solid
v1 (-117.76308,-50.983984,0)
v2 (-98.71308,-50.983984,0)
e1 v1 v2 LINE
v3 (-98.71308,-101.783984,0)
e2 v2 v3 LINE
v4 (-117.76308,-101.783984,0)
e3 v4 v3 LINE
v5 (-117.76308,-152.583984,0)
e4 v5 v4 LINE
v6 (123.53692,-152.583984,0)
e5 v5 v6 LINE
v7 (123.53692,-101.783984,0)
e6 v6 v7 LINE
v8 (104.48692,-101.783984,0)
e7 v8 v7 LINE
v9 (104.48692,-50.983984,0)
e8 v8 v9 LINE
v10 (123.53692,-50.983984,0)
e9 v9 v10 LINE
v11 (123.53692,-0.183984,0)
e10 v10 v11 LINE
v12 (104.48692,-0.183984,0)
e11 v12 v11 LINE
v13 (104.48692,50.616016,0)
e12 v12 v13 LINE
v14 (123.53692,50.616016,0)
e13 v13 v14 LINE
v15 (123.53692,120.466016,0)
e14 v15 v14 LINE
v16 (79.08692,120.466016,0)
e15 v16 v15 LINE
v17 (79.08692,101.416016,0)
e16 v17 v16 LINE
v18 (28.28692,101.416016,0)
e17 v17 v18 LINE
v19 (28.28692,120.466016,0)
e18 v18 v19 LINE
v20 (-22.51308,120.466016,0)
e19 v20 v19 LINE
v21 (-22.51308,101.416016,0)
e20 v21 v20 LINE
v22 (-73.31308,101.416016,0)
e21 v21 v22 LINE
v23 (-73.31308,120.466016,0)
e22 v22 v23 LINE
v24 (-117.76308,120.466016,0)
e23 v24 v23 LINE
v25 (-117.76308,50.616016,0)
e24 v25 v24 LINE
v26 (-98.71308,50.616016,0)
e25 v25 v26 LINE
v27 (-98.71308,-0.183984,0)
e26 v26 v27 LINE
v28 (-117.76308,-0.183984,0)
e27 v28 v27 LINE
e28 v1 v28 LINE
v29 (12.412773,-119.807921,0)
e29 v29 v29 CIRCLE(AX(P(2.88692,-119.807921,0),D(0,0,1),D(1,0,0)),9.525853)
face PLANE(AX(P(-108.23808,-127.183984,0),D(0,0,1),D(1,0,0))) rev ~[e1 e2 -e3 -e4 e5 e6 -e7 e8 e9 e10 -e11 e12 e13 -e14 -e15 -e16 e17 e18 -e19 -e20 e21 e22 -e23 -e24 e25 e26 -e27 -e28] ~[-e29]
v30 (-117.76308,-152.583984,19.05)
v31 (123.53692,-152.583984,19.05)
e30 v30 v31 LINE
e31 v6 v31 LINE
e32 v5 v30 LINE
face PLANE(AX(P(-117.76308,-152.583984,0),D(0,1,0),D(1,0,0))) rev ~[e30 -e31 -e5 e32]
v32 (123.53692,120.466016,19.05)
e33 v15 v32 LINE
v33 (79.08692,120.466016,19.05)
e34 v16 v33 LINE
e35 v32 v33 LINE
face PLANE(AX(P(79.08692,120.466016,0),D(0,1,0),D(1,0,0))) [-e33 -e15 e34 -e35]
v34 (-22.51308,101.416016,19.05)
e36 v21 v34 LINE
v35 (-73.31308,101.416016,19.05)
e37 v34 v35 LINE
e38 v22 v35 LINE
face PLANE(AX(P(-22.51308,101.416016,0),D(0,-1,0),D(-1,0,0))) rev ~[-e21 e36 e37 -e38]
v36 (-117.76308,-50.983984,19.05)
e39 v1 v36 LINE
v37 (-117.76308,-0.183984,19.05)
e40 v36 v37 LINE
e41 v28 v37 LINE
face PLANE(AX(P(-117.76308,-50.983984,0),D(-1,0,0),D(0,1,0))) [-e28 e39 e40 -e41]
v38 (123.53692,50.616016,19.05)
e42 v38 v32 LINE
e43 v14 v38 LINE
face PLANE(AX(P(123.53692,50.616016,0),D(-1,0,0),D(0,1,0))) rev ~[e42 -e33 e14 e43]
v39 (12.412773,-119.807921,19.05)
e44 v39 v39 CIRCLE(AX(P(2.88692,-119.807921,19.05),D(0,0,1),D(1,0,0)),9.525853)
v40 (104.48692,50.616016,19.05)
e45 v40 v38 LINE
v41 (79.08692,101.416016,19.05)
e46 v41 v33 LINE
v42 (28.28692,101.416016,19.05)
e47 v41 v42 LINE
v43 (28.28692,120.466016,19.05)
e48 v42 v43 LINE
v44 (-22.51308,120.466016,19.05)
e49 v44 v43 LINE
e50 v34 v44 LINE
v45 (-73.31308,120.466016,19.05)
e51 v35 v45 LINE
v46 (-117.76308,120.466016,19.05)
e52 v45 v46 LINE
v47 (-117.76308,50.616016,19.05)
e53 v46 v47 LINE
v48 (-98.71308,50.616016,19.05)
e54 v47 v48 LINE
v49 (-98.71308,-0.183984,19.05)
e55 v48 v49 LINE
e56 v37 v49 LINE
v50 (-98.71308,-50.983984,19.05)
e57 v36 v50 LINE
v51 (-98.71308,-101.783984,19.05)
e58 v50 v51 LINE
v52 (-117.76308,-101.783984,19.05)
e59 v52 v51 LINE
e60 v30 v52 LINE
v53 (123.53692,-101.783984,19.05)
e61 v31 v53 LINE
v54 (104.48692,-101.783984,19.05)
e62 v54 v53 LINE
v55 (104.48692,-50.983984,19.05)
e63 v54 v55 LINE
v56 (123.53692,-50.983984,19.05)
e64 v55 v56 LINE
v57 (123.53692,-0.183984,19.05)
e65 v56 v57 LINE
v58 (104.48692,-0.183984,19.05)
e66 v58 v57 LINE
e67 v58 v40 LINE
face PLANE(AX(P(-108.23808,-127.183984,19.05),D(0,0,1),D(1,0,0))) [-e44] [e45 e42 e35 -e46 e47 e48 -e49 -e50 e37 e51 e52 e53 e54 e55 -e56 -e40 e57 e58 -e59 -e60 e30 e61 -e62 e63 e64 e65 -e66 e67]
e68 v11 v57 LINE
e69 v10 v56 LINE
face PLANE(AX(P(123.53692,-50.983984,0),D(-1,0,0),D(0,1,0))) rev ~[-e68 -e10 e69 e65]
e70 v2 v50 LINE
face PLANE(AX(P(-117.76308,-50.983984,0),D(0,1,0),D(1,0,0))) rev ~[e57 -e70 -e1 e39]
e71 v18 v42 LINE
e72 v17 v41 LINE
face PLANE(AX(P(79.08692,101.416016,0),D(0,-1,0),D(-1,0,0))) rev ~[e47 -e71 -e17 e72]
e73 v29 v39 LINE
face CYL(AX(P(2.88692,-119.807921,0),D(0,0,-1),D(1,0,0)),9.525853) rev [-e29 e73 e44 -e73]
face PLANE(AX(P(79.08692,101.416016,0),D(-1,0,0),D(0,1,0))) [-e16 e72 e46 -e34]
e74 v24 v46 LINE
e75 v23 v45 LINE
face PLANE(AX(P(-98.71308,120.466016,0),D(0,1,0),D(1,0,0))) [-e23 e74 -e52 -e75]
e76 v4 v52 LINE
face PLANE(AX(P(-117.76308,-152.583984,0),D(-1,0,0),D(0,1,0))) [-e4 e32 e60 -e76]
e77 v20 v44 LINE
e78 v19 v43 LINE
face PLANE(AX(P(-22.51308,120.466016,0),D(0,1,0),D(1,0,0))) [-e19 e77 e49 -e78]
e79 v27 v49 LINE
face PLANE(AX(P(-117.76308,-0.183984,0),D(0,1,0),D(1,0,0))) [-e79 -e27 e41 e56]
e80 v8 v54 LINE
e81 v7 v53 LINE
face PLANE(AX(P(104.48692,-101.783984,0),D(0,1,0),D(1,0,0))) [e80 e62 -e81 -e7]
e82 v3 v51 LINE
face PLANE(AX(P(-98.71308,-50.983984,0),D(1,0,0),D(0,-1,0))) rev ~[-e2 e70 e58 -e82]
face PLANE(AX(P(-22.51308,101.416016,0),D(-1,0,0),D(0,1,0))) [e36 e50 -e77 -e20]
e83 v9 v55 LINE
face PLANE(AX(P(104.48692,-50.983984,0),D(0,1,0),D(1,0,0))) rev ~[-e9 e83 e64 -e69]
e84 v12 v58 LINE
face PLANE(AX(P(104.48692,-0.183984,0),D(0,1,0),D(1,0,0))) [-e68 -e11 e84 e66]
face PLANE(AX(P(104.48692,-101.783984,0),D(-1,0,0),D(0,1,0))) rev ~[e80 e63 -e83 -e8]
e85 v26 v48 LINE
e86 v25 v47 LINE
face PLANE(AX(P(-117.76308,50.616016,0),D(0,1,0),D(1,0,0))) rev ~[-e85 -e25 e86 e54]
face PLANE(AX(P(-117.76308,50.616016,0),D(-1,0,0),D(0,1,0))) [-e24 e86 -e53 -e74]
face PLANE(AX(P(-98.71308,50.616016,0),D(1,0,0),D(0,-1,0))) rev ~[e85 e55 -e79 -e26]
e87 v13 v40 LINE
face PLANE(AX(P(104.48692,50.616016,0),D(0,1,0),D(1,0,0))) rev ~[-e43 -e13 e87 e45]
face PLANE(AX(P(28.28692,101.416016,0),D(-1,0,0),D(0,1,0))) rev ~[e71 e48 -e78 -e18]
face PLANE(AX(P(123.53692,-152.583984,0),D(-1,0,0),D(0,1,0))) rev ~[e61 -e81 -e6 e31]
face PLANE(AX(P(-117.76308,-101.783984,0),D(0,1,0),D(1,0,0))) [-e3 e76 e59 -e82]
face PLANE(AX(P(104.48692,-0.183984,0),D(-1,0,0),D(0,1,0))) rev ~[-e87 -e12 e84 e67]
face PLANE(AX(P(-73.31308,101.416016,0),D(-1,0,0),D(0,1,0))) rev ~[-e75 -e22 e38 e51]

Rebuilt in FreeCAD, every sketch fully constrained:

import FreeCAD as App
import Part
import Sketcher
from FreeCAD import Vector
Q = App.Units.Quantity


def add_polygon(sketch, points):
    """Adds a closed chain of lines whose ends are joined by coincident constraints."""
    first, n = sketch.GeometryCount, len(points)
    for a, b in zip(points, points[1:] + points[:1]):
        sketch.addGeometry(Part.LineSegment(App.Vector(*a, 0), App.Vector(*b, 0)), False)
    for i in range(n):
        sketch.addConstraint(Sketcher.Constraint("Coincident", first + i, 2, first + (i + 1) % n, 1))

doc = App.newDocument("Part")
body = doc.addObject("PartDesign::Body", "Body")

sketch1 = body.newObject("Sketcher::SketchObject", "Sketch")
sketch1.AttachmentSupport = (doc.getObject("XY_Plane"), [""])
sketch1.MapMode = "FlatFace"
add_polygon(sketch1, [(-118, -102), (-118, -153), (124, -153), (124, -102), (104, -102), (104, -51), (124, -51), (124, 0), (104, 0), (104, 51), (124, 51), (124, 101), (104, 101), (104, 120), (79, 120), (79, 101), (28, 101), (28, 120), (-23, 120), (-23, 101), (-73, 101), (-73, 120), (-99, 120), (-99, 101), (-118, 101), (-118, 51), (-99, 51), (-99, 0), (-118, 0), (-118, -51), (-99, -51), (-99, -102)])
sketch1.addGeometry(Part.Circle(Vector(3, -120, 0), Vector(0, 0, 1), 10), False)
sketch1.addConstraint([
    Sketcher.Constraint("Vertical", 0),
    Sketcher.Constraint("Horizontal", 1),
    Sketcher.Constraint("Vertical", 2),
    Sketcher.Constraint("Horizontal", 3),
    Sketcher.Constraint("Vertical", 4),
    Sketcher.Constraint("Horizontal", 5),
    Sketcher.Constraint("Vertical", 6),
    Sketcher.Constraint("Horizontal", 7),
    Sketcher.Constraint("Vertical", 8),
    Sketcher.Constraint("Horizontal", 9),
    Sketcher.Constraint("Vertical", 10),
    Sketcher.Constraint("Horizontal", 11),
    Sketcher.Constraint("Vertical", 12),
    Sketcher.Constraint("Horizontal", 13),
    Sketcher.Constraint("Vertical", 14),
    Sketcher.Constraint("Horizontal", 15),
    Sketcher.Constraint("Vertical", 16),
    Sketcher.Constraint("Horizontal", 17),
    Sketcher.Constraint("Vertical", 18),
    Sketcher.Constraint("Horizontal", 19),
    Sketcher.Constraint("Vertical", 20),
    Sketcher.Constraint("Horizontal", 21),
    Sketcher.Constraint("Vertical", 22),
    Sketcher.Constraint("Horizontal", 23),
    Sketcher.Constraint("Vertical", 24),
    Sketcher.Constraint("Horizontal", 25),
    Sketcher.Constraint("Vertical", 26),
    Sketcher.Constraint("Horizontal", 27),
    Sketcher.Constraint("Vertical", 28),
    Sketcher.Constraint("Horizontal", 29),
    Sketcher.Constraint("Vertical", 30),
    Sketcher.Constraint("Horizontal", 31),
    Sketcher.Constraint("Horizontal", 11, 2, 14, 2),
    Sketcher.Constraint("Horizontal", 13, 2, 16, 2),
    Sketcher.Constraint("Horizontal", 15, 2, 18, 2),
    Sketcher.Constraint("Horizontal", 17, 2, 20, 2),
    Sketcher.Constraint("Horizontal", 19, 2, 22, 2),
    Sketcher.Constraint("Horizontal", 9, 2, 24, 2),
    Sketcher.Constraint("Horizontal", 7, 2, 26, 2),
    Sketcher.Constraint("Horizontal", 5, 2, 28, 2),
    Sketcher.Constraint("Horizontal", 3, 2, 30, 2),
    Sketcher.Constraint("Vertical", 2, 2, 5, 2),
    Sketcher.Constraint("Vertical", 4, 2, 7, 2),
    Sketcher.Constraint("Vertical", 6, 2, 9, 2),
    Sketcher.Constraint("Vertical", 8, 2, 11, 2),
    Sketcher.Constraint("Vertical", 0, 2, 23, 2),
    Sketcher.Constraint("Vertical", 22, 2, 25, 2),
    Sketcher.Constraint("Vertical", 24, 2, 27, 2),
    Sketcher.Constraint("Vertical", 26, 2, 29, 2),
    Sketcher.Constraint("Equal", 15, 17),
    Sketcher.Constraint("Equal", 17, 19),
    Sketcher.Constraint("Equal", 13, 21),
    Sketcher.Constraint("Equal", 11, 23),
    Sketcher.Constraint("Equal", 19, 0),
    Sketcher.Constraint("Equal", 2, 4),
    Sketcher.Constraint("Equal", 4, 6),
    Sketcher.Constraint("Equal", 6, 8),
    Sketcher.Constraint("Equal", 8, 10),
    Sketcher.Constraint("Equal", 31, 12),
    Sketcher.Constraint("DistanceX", 13, 2, 13, 1, Q("1 in")),
    Sketcher.Constraint("DistanceX", 15, 2, 15, 1, Q("2 in")),
    Sketcher.Constraint("DistanceX", 1, 1, 1, 2, Q("9.5 in")),
    Sketcher.Constraint("DistanceX", 32, 3, 3, 2, Q("4 in")),
    Sketcher.Constraint("Diameter", 32, 19.051706),
    Sketcher.Constraint("DistanceX", -1, 1, 32, 3, 2.88692),
    Sketcher.Constraint("DistanceY", 32, 3, -1, 1, 119.807921),
    Sketcher.Constraint("DistanceY", 0, 2, -1, 1, 152.583984),
])
pad1 = body.newObject("PartDesign::Pad", "Pad")
pad1.Profile = sketch1
pad1.Length = Q("0.75 in")

sketch2 = body.newObject("Sketcher::SketchObject", "Sketch001")
sketch2.AttachmentSupport = (doc.getObject("XY_Plane"), [""])
sketch2.MapMode = "FlatFace"
add_polygon(sketch2, [(-118, 51), (-99, 51), (-99, 0), (-118, 0), (-118, -51), (-99, -51), (-99, -102), (-118, -102), (-118, -153), (124, -153), (124, -102), (104, -102), (104, -51), (124, -51), (124, 0), (104, 0), (104, 51), (124, 51), (124, 120), (79, 120), (79, 101), (28, 101), (28, 120), (-23, 120), (-23, 101), (-73, 101), (-73, 120), (-118, 120)])
sketch2.addGeometry(Part.Circle(Vector(3, -120, 0), Vector(0, 0, 1), 10), False)
sketch2.addConstraint([
    Sketcher.Constraint("Horizontal", 0),
    Sketcher.Constraint("Vertical", 1),
    Sketcher.Constraint("Horizontal", 2),
    Sketcher.Constraint("Vertical", 3),
    Sketcher.Constraint("Horizontal", 4),
    Sketcher.Constraint("Vertical", 5),
    Sketcher.Constraint("Horizontal", 6),
    Sketcher.Constraint("Vertical", 7),
    Sketcher.Constraint("Horizontal", 8),
    Sketcher.Constraint("Vertical", 9),
    Sketcher.Constraint("Horizontal", 10),
    Sketcher.Constraint("Vertical", 11),
    Sketcher.Constraint("Horizontal", 12),
    Sketcher.Constraint("Vertical", 13),
    Sketcher.Constraint("Horizontal", 14),
    Sketcher.Constraint("Vertical", 15),
    Sketcher.Constraint("Horizontal", 16),
    Sketcher.Constraint("Vertical", 17),
    Sketcher.Constraint("Horizontal", 18),
    Sketcher.Constraint("Vertical", 19),
    Sketcher.Constraint("Horizontal", 20),
    Sketcher.Constraint("Vertical", 21),
    Sketcher.Constraint("Horizontal", 22),
    Sketcher.Constraint("Vertical", 23),
    Sketcher.Constraint("Horizontal", 24),
    Sketcher.Constraint("Vertical", 25),
    Sketcher.Constraint("Horizontal", 26),
    Sketcher.Constraint("Vertical", 27),
    Sketcher.Constraint("Horizontal", 6, 2, 9, 2),
    Sketcher.Constraint("Horizontal", 4, 2, 11, 2),
    Sketcher.Constraint("Horizontal", 2, 2, 13, 2),
    Sketcher.Constraint("Horizontal", 0, 2, 15, 2),
    Sketcher.Constraint("Horizontal", 18, 2, 21, 2),
    Sketcher.Constraint("Horizontal", 20, 2, 23, 2),
    Sketcher.Constraint("Horizontal", 22, 2, 25, 2),
    Sketcher.Constraint("Vertical", 1, 2, 4, 2),
    Sketcher.Constraint("Vertical", 3, 2, 6, 2),
    Sketcher.Constraint("Vertical", 9, 2, 12, 2),
    Sketcher.Constraint("Vertical", 11, 2, 14, 2),
    Sketcher.Constraint("Vertical", 13, 2, 16, 2),
    Sketcher.Constraint("Vertical", 7, 2, 26, 2),
    Sketcher.Constraint("Equal", 6, 10),
    Sketcher.Constraint("Equal", 20, 22),
    Sketcher.Constraint("Equal", 22, 24),
    Sketcher.Constraint("Equal", 18, 26),
    Sketcher.Constraint("Equal", 24, 1),
    Sketcher.Constraint("Equal", 1, 3),
    Sketcher.Constraint("Equal", 3, 5),
    Sketcher.Constraint("Equal", 5, 7),
    Sketcher.Constraint("Equal", 16, 19),
    Sketcher.Constraint("DistanceX", 20, 2, 20, 1, Q("2 in")),
    Sketcher.Constraint("DistanceX", 8, 1, 8, 2, Q("9.5 in")),
    Sketcher.Constraint("DistanceX", 0, 2, 28, 3, Q("4 in")),
    Sketcher.Constraint("DistanceX", 28, 3, 10, 2, Q("4 in")),
    Sketcher.Constraint("DistanceY", 15, 2, 19, 2, Q("2 in")),
    Sketcher.Constraint("Diameter", 28, 19.051706),
    Sketcher.Constraint("DistanceX", -1, 1, 28, 3, 2.88692),
    Sketcher.Constraint("DistanceY", 28, 3, -1, 1, 119.807921),
    Sketcher.Constraint("DistanceY", -1, 1, 0, 2, 50.616016),
])
pad2 = body.newObject("PartDesign::Pad", "Pad001")
pad2.Profile = sketch2
pad2.Length = Q("0.75 in")

doc.recompute()
